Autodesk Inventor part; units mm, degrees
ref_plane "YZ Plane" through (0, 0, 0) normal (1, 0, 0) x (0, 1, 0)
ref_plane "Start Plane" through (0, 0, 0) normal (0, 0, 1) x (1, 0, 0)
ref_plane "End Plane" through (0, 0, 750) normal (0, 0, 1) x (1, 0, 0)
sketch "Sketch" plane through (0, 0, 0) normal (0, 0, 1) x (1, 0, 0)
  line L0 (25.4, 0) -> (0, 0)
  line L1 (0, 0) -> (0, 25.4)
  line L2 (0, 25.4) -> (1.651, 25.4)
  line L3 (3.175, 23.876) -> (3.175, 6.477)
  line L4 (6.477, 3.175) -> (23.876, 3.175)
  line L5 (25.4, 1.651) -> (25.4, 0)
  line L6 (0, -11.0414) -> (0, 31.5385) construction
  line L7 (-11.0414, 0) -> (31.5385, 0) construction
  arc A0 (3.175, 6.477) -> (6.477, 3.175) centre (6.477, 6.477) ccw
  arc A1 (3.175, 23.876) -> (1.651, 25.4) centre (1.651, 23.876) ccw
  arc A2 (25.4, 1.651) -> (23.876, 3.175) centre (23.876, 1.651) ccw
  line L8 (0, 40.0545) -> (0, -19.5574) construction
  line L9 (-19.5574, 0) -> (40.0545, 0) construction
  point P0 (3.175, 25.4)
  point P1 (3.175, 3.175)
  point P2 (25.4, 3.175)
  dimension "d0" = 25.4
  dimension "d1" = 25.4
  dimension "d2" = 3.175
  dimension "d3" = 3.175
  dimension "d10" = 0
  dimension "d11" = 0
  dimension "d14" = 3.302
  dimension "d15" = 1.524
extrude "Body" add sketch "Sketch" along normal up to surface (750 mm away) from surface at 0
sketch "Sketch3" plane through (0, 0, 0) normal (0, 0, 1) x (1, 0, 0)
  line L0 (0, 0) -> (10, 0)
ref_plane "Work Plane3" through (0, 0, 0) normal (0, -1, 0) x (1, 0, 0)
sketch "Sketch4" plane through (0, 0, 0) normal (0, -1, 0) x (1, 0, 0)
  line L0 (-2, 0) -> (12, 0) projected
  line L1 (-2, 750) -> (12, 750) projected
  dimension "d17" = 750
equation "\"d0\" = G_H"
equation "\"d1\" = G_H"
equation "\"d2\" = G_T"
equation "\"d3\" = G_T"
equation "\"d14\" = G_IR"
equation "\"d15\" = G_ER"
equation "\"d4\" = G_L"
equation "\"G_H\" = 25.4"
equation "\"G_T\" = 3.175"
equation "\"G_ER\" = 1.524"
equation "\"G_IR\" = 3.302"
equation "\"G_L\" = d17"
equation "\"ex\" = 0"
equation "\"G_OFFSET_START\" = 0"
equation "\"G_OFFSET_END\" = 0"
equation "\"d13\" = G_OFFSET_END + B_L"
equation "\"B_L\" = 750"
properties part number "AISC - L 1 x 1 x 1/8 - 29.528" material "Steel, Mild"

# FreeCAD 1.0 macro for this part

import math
import FreeCAD as App
import Part
import Sketcher
from FreeCAD import Vector
Q = App.Units.Quantity

doc = App.newDocument("Part")
body = doc.addObject("PartDesign::Body", "Body")

sketch1 = body.newObject("Sketcher::SketchObject", "Sketch")
sketch1.AttachmentSupport = (doc.getObject("XY_Plane"), [""])
sketch1.MapMode = "FlatFace"
sketch1.addGeometry(Part.LineSegment(Vector(0, 0, 0), Vector(25.4, 0, 0)), False)
sketch1.addGeometry(Part.LineSegment(Vector(25.4, 0, 0), Vector(25.4, 1.7, 0)), False)
sketch1.addGeometry(Part.ArcOfCircle(Part.Circle(Vector(23.9, 1.7, 0), Vector(0, 0, 1), 1.5), math.radians(0), math.radians(90)), False)
sketch1.addGeometry(Part.LineSegment(Vector(23.9, 3.2, 0), Vector(6.5, 3.2, 0)), False)
sketch1.addGeometry(Part.ArcOfCircle(Part.Circle(Vector(6.5, 6.5, 0), Vector(0, 0, 1), 3.3), math.radians(180), math.radians(270)), False)
sketch1.addGeometry(Part.LineSegment(Vector(3.2, 6.5, 0), Vector(3.2, 23.9, 0)), False)
sketch1.addGeometry(Part.ArcOfCircle(Part.Circle(Vector(1.7, 23.9, 0), Vector(0, 0, 1), 1.5), math.radians(0), math.radians(90)), False)
sketch1.addGeometry(Part.LineSegment(Vector(1.7, 25.4, 0), Vector(0, 25.4, 0)), False)
sketch1.addGeometry(Part.LineSegment(Vector(0, 25.4, 0), Vector(0, 0, 0)), False)
sketch1.addConstraint(Sketcher.Constraint("Coincident", 0, 2, 1, 1))
sketch1.addConstraint(Sketcher.Constraint("Tangent", 1, 2, 2, 1))
sketch1.addConstraint(Sketcher.Constraint("Tangent", 2, 2, 3, 1))
sketch1.addConstraint(Sketcher.Constraint("Tangent", 3, 2, 4, 2))
sketch1.addConstraint(Sketcher.Constraint("Tangent", 4, 1, 5, 1))
sketch1.addConstraint(Sketcher.Constraint("Tangent", 5, 2, 6, 1))
sketch1.addConstraint(Sketcher.Constraint("Tangent", 6, 2, 7, 1))
sketch1.addConstraint(Sketcher.Constraint("Coincident", 7, 2, 8, 1))
sketch1.addConstraint(Sketcher.Constraint("Coincident", 8, 2, 0, 1))
sketch1.addConstraint(Sketcher.Constraint("Horizontal", 0))
sketch1.addConstraint(Sketcher.Constraint("Vertical", 1))
sketch1.addConstraint(Sketcher.Constraint("Horizontal", 3))
sketch1.addConstraint(Sketcher.Constraint("Vertical", 5))
sketch1.addConstraint(Sketcher.Constraint("Horizontal", 7))
sketch1.addConstraint(Sketcher.Constraint("Vertical", 8))
sketch1.addConstraint(Sketcher.Constraint("Coincident", 8, 2, -1, 1))
sketch1.addConstraint(Sketcher.Constraint("Equal", 2, 6))
sketch1.addConstraint(Sketcher.Constraint("Equal", 7, 1))
sketch1.addConstraint(Sketcher.Constraint("Equal", 3, 5))
sketch1.addConstraint(Sketcher.Constraint("DistanceX", 0, 1, 0, 2, Q("1 in")))
sketch1.addConstraint(Sketcher.Constraint("Radius", 2, Q("0.06 in")))
sketch1.addConstraint(Sketcher.Constraint("Radius", 4, Q("0.13 in")))
sketch1.addConstraint(Sketcher.Constraint("DistanceY", -1, 1, 2, 2, Q("0.125 in")))
pad1 = body.newObject("PartDesign::Pad", "Pad")
pad1.Profile = sketch1
pad1.Length = 750

doc.recompute()
